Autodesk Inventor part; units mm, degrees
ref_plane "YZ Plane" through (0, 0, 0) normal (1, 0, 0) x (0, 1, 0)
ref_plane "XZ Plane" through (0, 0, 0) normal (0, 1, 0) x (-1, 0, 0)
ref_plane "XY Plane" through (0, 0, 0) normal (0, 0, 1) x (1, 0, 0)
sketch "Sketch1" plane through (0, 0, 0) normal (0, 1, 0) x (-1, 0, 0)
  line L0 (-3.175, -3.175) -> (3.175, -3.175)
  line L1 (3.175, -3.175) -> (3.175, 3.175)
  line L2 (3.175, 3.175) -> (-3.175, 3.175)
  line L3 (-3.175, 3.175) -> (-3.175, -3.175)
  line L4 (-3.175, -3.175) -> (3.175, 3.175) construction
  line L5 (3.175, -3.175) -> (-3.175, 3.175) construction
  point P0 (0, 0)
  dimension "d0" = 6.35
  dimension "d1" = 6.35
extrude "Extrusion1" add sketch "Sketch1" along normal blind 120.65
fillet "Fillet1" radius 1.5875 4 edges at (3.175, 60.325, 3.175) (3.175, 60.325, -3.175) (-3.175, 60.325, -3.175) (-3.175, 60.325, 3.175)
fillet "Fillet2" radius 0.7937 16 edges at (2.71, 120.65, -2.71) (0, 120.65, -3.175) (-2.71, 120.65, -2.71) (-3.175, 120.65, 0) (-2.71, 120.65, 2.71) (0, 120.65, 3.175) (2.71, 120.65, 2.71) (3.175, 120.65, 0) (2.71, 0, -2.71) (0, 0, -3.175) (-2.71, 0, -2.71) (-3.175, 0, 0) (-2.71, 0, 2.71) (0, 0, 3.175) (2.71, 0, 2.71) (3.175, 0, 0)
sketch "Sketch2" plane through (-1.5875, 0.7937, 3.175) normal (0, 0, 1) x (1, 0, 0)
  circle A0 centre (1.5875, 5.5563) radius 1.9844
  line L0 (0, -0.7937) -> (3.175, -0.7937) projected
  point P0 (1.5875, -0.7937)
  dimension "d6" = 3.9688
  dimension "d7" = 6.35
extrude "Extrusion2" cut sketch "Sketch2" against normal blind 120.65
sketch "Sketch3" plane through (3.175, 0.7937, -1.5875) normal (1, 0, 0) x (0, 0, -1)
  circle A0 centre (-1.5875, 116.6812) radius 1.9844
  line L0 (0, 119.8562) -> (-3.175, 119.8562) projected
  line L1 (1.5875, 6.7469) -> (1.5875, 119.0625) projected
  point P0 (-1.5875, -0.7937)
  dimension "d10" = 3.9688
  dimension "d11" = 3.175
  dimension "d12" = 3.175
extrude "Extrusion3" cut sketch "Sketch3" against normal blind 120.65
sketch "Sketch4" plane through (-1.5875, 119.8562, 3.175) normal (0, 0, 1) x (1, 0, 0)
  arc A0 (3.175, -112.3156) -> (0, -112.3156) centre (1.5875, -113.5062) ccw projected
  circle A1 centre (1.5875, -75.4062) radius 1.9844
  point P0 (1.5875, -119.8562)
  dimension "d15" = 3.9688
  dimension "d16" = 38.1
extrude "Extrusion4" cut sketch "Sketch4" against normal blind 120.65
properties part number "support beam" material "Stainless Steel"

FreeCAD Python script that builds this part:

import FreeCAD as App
import Part
import Sketcher
Q = App.Units.Quantity


def edges_at(feature, points):
    """Names of the edges that pass closest to the given points."""
    edges = feature.Shape.Edges
    near = lambda p: min(range(len(edges)), key=lambda i: edges[i].distToShape(Part.Vertex(*p))[0])
    return sorted({f"Edge{near(p) + 1}" for p in points})


def add_polygon(sketch, points):
    """Adds a closed chain of lines whose ends are joined by coincident constraints."""
    first, n = sketch.GeometryCount, len(points)
    for a, b in zip(points, points[1:] + points[:1]):
        sketch.addGeometry(Part.LineSegment(App.Vector(*a, 0), App.Vector(*b, 0)), False)
    for i in range(n):
        sketch.addConstraint(Sketcher.Constraint("Coincident", first + i, 2, first + (i + 1) % n, 1))

doc = App.newDocument("Part")
body = doc.addObject("PartDesign::Body", "Body")

sketch1 = body.newObject("Sketcher::SketchObject", "Sketch")
sketch1.AttachmentSupport = (doc.getObject("XZ_Plane"), [""])
sketch1.MapMode = "FlatFace"
add_polygon(sketch1, [(3, 3), (3, -3), (-3, -3), (-3, 3)])
sketch1.addConstraint([
    Sketcher.Constraint("Vertical", 0),
    Sketcher.Constraint("Horizontal", 1),
    Sketcher.Constraint("Vertical", 2),
    Sketcher.Constraint("Horizontal", 3),
    Sketcher.Constraint("Symmetric", 0, 2, 2, 2, -1, 1),
    Sketcher.Constraint("Equal", 3, 0),
    Sketcher.Constraint("DistanceX", 1, 2, 1, 1, Q("0.25 in")),
])
pad1 = body.newObject("PartDesign::Pad", "Pad")
pad1.Profile = sketch1
pad1.Length = Q("4.75 in")
pad1.Reversed = True
doc.recompute()

fillet = body.newObject("PartDesign::Fillet", "Fillet")
fillet.Base = (pad1, edges_at(pad1, [
    (3.175, 60.325, 3.175),
    (3.175, 60.325, -3.175),
    (-3.175, 60.325, -3.175),
    (-3.175, 60.325, 3.175),
]))
fillet.Radius = Q("0.0625 in")
doc.recompute()

fillet2 = body.newObject("PartDesign::Fillet", "Fillet001")
fillet2.Base = (fillet, edges_at(fillet, [
    (2.71, 120.65, -2.71),
    (0, 120.65, -3.175),
    (-2.71, 120.65, -2.71),
    (-3.175, 120.65, 0),
    (-2.71, 120.65, 2.71),
    (0, 120.65, 3.175),
    (2.71, 120.65, 2.71),
    (3.175, 120.65, 0),
    (2.71, 0, -2.71),
    (0, 0, -3.175),
    (-2.71, 0, -2.71),
    (-3.175, 0, 0),
    (-2.71, 0, 2.71),
    (0, 0, 3.175),
    (2.71, 0, 2.71),
    (3.175, 0, 0),
]))
fillet2.Radius = Q("0.031248 in")

sketch2 = body.newObject("Sketcher::SketchObject", "Sketch001")
sketch2.AttachmentSupport = (doc.getObject("XY_Plane"), [""])
sketch2.MapMode = "FlatFace"
sketch2.AttachmentOffset = App.Placement(App.Vector(0, 0, 0.125 * 25.4), App.Rotation())
sketch2.addGeometry(Part.Circle(App.Vector(0, 6.3, 0), App.Vector(0, 0, 1), 2), False)
sketch2.addConstraint([
    Sketcher.Constraint("PointOnObject", 0, 3, -2),
    Sketcher.Constraint("Diameter", 0, Q("0.156252 in")),
    Sketcher.Constraint("DistanceY", -1, 1, 0, 3, Q("0.25 in")),
])
pocket1 = body.newObject("PartDesign::Pocket", "Pocket")
pocket1.Profile = sketch2
pocket1.Length = Q("4.75 in")

sketch3 = body.newObject("Sketcher::SketchObject", "Sketch002")
sketch3.AttachmentSupport = (doc.getObject("YZ_Plane"), [""])
sketch3.MapMode = "FlatFace"
sketch3.AttachmentOffset = App.Placement(App.Vector(0, 0, 0.125 * 25.4), App.Rotation())
sketch3.addGeometry(Part.Circle(App.Vector(117.5, 0, 0), App.Vector(0, 0, 1), 2), False)
sketch3.addConstraint([
    Sketcher.Constraint("PointOnObject", 0, 3, -1),
    Sketcher.Constraint("Diameter", 0, Q("0.156252 in")),
    Sketcher.Constraint("DistanceX", -1, 1, 0, 3, Q("4.625 in")),
])
pocket2 = body.newObject("PartDesign::Pocket", "Pocket001")
pocket2.Profile = sketch3
pocket2.Length = Q("4.75 in")

sketch4 = body.newObject("Sketcher::SketchObject", "Sketch003")
sketch4.AttachmentSupport = (doc.getObject("XY_Plane"), [""])
sketch4.MapMode = "FlatFace"
sketch4.AttachmentOffset = App.Placement(App.Vector(0, 0, 0.125 * 25.4), App.Rotation())
sketch4.addGeometry(Part.Circle(App.Vector(0, 44.5, 0), App.Vector(0, 0, 1), 2), False)
sketch4.addConstraint([
    Sketcher.Constraint("PointOnObject", 0, 3, -2),
    Sketcher.Constraint("Diameter", 0, Q("0.156252 in")),
    Sketcher.Constraint("DistanceY", -1, 1, 0, 3, Q("1.75 in")),
])
pocket3 = body.newObject("PartDesign::Pocket", "Pocket002")
pocket3.Profile = sketch4
pocket3.Length = Q("4.75 in")

doc.recompute()
